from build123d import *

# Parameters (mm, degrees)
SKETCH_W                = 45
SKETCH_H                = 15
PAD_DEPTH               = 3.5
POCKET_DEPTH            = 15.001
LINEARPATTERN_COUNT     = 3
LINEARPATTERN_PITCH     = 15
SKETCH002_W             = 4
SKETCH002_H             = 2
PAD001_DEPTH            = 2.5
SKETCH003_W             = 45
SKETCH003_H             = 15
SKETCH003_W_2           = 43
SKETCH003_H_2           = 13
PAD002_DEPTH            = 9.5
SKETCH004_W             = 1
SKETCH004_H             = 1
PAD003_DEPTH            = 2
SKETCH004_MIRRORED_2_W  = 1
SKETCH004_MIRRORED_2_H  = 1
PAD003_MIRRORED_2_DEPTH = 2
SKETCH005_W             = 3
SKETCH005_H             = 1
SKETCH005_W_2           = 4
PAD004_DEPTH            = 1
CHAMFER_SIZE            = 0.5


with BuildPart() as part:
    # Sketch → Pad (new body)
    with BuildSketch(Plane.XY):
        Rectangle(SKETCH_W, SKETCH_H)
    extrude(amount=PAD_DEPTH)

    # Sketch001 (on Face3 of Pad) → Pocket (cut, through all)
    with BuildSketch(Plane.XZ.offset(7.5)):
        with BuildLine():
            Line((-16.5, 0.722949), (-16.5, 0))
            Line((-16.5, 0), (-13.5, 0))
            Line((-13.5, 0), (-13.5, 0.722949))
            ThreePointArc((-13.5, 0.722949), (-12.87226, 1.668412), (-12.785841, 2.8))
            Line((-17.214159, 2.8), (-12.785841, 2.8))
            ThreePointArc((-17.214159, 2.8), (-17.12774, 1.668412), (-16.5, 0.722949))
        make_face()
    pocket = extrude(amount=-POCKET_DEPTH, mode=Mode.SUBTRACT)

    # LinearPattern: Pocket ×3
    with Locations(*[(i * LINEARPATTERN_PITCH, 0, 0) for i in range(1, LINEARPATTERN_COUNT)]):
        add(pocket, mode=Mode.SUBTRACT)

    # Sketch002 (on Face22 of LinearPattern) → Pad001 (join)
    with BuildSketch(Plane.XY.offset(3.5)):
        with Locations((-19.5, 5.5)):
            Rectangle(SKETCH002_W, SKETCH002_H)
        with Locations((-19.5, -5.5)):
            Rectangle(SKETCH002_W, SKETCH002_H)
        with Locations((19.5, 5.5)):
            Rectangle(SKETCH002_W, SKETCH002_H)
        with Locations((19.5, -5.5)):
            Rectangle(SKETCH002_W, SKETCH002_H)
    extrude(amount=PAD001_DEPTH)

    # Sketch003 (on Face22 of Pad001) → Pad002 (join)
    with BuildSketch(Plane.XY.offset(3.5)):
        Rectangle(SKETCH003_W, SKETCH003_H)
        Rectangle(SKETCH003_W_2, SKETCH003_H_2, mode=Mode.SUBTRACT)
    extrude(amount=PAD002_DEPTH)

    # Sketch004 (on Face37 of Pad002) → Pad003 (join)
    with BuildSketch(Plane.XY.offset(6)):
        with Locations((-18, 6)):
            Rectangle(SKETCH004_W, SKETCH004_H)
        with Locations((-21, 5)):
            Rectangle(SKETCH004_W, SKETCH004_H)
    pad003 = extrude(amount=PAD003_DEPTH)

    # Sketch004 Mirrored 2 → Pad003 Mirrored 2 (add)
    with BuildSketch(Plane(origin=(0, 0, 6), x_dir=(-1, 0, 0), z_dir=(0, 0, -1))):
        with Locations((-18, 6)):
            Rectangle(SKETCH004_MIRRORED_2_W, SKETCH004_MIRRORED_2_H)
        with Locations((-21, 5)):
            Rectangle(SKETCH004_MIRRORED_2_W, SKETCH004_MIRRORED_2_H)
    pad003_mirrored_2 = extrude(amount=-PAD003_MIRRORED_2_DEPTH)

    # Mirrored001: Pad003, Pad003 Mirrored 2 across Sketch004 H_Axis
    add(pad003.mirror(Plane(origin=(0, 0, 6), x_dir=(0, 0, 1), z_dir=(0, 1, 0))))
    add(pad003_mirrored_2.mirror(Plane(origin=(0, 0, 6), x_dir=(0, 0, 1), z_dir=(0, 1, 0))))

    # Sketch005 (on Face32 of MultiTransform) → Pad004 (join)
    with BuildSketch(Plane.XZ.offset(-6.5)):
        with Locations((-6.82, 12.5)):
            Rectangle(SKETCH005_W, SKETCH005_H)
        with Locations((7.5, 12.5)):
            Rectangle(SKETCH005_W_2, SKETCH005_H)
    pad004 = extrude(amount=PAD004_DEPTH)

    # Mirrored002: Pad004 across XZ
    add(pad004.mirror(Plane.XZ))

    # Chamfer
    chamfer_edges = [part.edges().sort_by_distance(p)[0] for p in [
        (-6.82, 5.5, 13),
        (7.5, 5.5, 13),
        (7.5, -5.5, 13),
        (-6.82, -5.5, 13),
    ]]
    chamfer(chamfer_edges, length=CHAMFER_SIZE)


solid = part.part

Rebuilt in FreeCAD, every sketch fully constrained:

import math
import FreeCAD as App
import Part
import Sketcher

V = App.Vector
Q = App.Units.Quantity


def edges_at(feature, points):
    """Names of the edges that pass closest to the given points."""
    edges = feature.Shape.Edges
    near = lambda p: min(range(len(edges)), key=lambda i: edges[i].distToShape(Part.Vertex(*p))[0])
    return sorted({f"Edge{near(p) + 1}" for p in points})

doc = App.newDocument("Part")
params = doc.addObject("Spreadsheet::Sheet", "Params")
for row, (alias, value) in enumerate([
    ("sketch1_width", "45 mm"),
    ("sketch1_height", "15 mm"),
    ("pad1_length", "3.5 mm"),
    ("sketch2_width", "3 mm"),
    ("linearpattern_pitch", "15 mm"),
    ("sketch3_width", "4 mm"),
    ("sketch3_height", "2 mm"),
    ("pad2_length", "2.5 mm"),
    ("sketch4_width", "45 mm"),
    ("sketch4_width2", "43 mm"),
    ("sketch4_height", "15 mm"),
    ("sketch4_height2", "13 mm"),
    ("pad3_length", "9.5 mm"),
    ("sketch5_width", "1 mm"),
    ("pad4_length", "2 mm"),
    ("sketch6_width", "1 mm"),
    ("pad5_length", "2 mm"),
    ("sketch7_width", "3 mm"),
    ("sketch7_width2", "4 mm"),
    ("sketch7_height", "1 mm"),
    ("pad6_length", "1 mm"),
    ("chamfer_size", "0.5 mm"),
], start=1):
    params.set(f"A{row}", alias)
    params.set(f"B{row}", "=" + value)
    params.setAlias(f"B{row}", alias)

body = doc.addObject("PartDesign::Body", "Body")

sketch1 = doc.addObject("Sketcher::SketchObject", "Sketch")
body.addObject(sketch1)
sketch1.AttachmentSupport = (doc.XY_Plane, [""])
sketch1.MapMode = "FlatFace"
sketch1.addGeometry(Part.LineSegment(V(-22, 8, 0), V(-22, -8, 0)), False)
sketch1.addGeometry(Part.LineSegment(V(-22, -8, 0), V(22, -8, 0)), False)
sketch1.addGeometry(Part.LineSegment(V(22, -8, 0), V(22, 8, 0)), False)
sketch1.addGeometry(Part.LineSegment(V(22, 8, 0), V(-22, 8, 0)), False)
sketch1.addConstraint(Sketcher.Constraint("Coincident", 0, 2, 1, 1))
sketch1.addConstraint(Sketcher.Constraint("Coincident", 1, 2, 2, 1))
sketch1.addConstraint(Sketcher.Constraint("Coincident", 2, 2, 3, 1))
sketch1.addConstraint(Sketcher.Constraint("Coincident", 3, 2, 0, 1))
sketch1.addConstraint(Sketcher.Constraint("Vertical", 0))
sketch1.addConstraint(Sketcher.Constraint("Horizontal", 1))
sketch1.addConstraint(Sketcher.Constraint("Vertical", 2))
sketch1.addConstraint(Sketcher.Constraint("Horizontal", 3))
sketch1.addConstraint(Sketcher.Constraint("Symmetric", 0, 2, 2, 2, -1, 1))
sketch1.addConstraint(Sketcher.Constraint("DistanceX", 1, 1, 1, 2, Q("45 mm")))
sketch1.addConstraint(Sketcher.Constraint("DistanceY", 0, 2, 0, 1, Q("15 mm")))
sketch1.setExpression("Constraints[9]", "Params.sketch1_width")
sketch1.setExpression("Constraints[10]", "Params.sketch1_height")
pad1 = doc.addObject("PartDesign::Pad", "Pad")
body.addObject(pad1)
pad1.Profile = sketch1
pad1.setExpression("Length", "Params.pad1_length")

sketch2 = doc.addObject("Sketcher::SketchObject", "Sketch001")
body.addObject(sketch2)
sketch2.AttachmentSupport = (doc.XZ_Plane, [""])
sketch2.MapMode = "FlatFace"
sketch2.AttachmentOffset = App.Placement(V(0, 0, 7.5), App.Rotation())
sketch2.addGeometry(Part.LineSegment(V(-16.5, 0.7, 0), V(-16.5, 0, 0)), False)
sketch2.addGeometry(Part.LineSegment(V(-16.5, 0, 0), V(-13.5, 0, 0)), False)
sketch2.addGeometry(Part.LineSegment(V(-13.5, 0, 0), V(-13.5, 0.7, 0)), False)
sketch2.addGeometry(Part.ArcOfCircle(Part.Circle(V(-15, 2.4, 0), V(0, 0, 1), 2.3), math.radians(-48), math.radians(10)), False)
sketch2.addGeometry(Part.LineSegment(V(-12.8, 2.8, 0), V(-17.2, 2.8, 0)), False)
sketch2.addGeometry(Part.ArcOfCircle(Part.Circle(V(-15, 2.4, 0), V(0, 0, 1), 2.3), math.radians(170), math.radians(228)), False)
sketch2.addConstraint(Sketcher.Constraint("Coincident", 0, 2, 1, 1))
sketch2.addConstraint(Sketcher.Constraint("Coincident", 1, 2, 2, 1))
sketch2.addConstraint(Sketcher.Constraint("Coincident", 2, 2, 3, 1))
sketch2.addConstraint(Sketcher.Constraint("Coincident", 3, 2, 4, 1))
sketch2.addConstraint(Sketcher.Constraint("Coincident", 4, 2, 5, 1))
sketch2.addConstraint(Sketcher.Constraint("Coincident", 5, 2, 0, 1))
sketch2.addConstraint(Sketcher.Constraint("Vertical", 0))
sketch2.addConstraint(Sketcher.Constraint("Horizontal", 1))
sketch2.addConstraint(Sketcher.Constraint("Vertical", 2))
sketch2.addConstraint(Sketcher.Constraint("Horizontal", 4))
sketch2.addConstraint(Sketcher.Constraint("Coincident", 5, 3, 3, 3))
sketch2.addConstraint(Sketcher.Constraint("Equal", 3, 5))
sketch2.addConstraint(Sketcher.Constraint("PointOnObject", 0, 2, -1))
sketch2.addConstraint(Sketcher.Constraint("Horizontal", 2, 2, 5, 2))
sketch2.addConstraint(Sketcher.Constraint("DistanceX", 1, 1, 1, 2, Q("3 mm")))
sketch2.addConstraint(Sketcher.Constraint("DistanceY", -1, 1, 3, 3, Q("2.400001 mm")))
sketch2.addConstraint(Sketcher.Constraint("DistanceX", 0, 2, -1, 1, Q("16.5 mm")))
sketch2.addConstraint(Sketcher.Constraint("DistanceY", -1, 1, 3, 2, Q("2.8 mm")))
sketch2.addConstraint(Sketcher.Constraint("Radius", 3, Q("2.250002 mm")))
sketch2.setExpression("Constraints[14]", "Params.sketch2_width")
pocket1 = doc.addObject("PartDesign::Pocket", "Pocket")
body.addObject(pocket1)
pocket1.Profile = sketch2
pocket1.Type = "ThroughAll"
doc.recompute()

linearpattern = doc.addObject("PartDesign::LinearPattern", "LinearPattern")
body.addObject(linearpattern)
linearpattern.Originals = [pocket1]
linearpattern.Direction = (doc.X_Axis, [""])
linearpattern.Mode = "offset"
linearpattern.setExpression("Offset", "Params.linearpattern_pitch")
linearpattern.Occurrences = 3
body.Tip = linearpattern

sketch3 = doc.addObject("Sketcher::SketchObject", "Sketch002")
body.addObject(sketch3)
sketch3.AttachmentSupport = (doc.XY_Plane, [""])
sketch3.MapMode = "FlatFace"
sketch3.AttachmentOffset = App.Placement(V(0, 0, 3.5), App.Rotation())
sketch3.addGeometry(Part.LineSegment(V(-21.5, 6.5, 0), V(-21.5, 4.5, 0)), False)
sketch3.addGeometry(Part.LineSegment(V(-21.5, 4.5, 0), V(-17.5, 4.5, 0)), False)
sketch3.addGeometry(Part.LineSegment(V(-17.5, 4.5, 0), V(-17.5, 6.5, 0)), False)
sketch3.addGeometry(Part.LineSegment(V(-17.5, 6.5, 0), V(-21.5, 6.5, 0)), False)
sketch3.addGeometry(Part.LineSegment(V(-21.5, -4.5, 0), V(-21.5, -6.5, 0)), False)
sketch3.addGeometry(Part.LineSegment(V(-21.5, -6.5, 0), V(-17.5, -6.5, 0)), False)
sketch3.addGeometry(Part.LineSegment(V(-17.5, -6.5, 0), V(-17.5, -4.5, 0)), False)
sketch3.addGeometry(Part.LineSegment(V(-17.5, -4.5, 0), V(-21.5, -4.5, 0)), False)
sketch3.addGeometry(Part.LineSegment(V(17.5, 6.5, 0), V(17.5, 4.5, 0)), False)
sketch3.addGeometry(Part.LineSegment(V(17.5, 4.5, 0), V(21.5, 4.5, 0)), False)
sketch3.addGeometry(Part.LineSegment(V(21.5, 4.5, 0), V(21.5, 6.5, 0)), False)
sketch3.addGeometry(Part.LineSegment(V(21.5, 6.5, 0), V(17.5, 6.5, 0)), False)
sketch3.addGeometry(Part.LineSegment(V(17.5, -4.5, 0), V(17.5, -6.5, 0)), False)
sketch3.addGeometry(Part.LineSegment(V(17.5, -6.5, 0), V(21.5, -6.5, 0)), False)
sketch3.addGeometry(Part.LineSegment(V(21.5, -6.5, 0), V(21.5, -4.5, 0)), False)
sketch3.addGeometry(Part.LineSegment(V(21.5, -4.5, 0), V(17.5, -4.5, 0)), False)
sketch3.addConstraint(Sketcher.Constraint("Coincident", 0, 2, 1, 1))
sketch3.addConstraint(Sketcher.Constraint("Coincident", 1, 2, 2, 1))
sketch3.addConstraint(Sketcher.Constraint("Coincident", 2, 2, 3, 1))
sketch3.addConstraint(Sketcher.Constraint("Coincident", 3, 2, 0, 1))
sketch3.addConstraint(Sketcher.Constraint("Coincident", 4, 2, 5, 1))
sketch3.addConstraint(Sketcher.Constraint("Coincident", 5, 2, 6, 1))
sketch3.addConstraint(Sketcher.Constraint("Coincident", 6, 2, 7, 1))
sketch3.addConstraint(Sketcher.Constraint("Coincident", 7, 2, 4, 1))
sketch3.addConstraint(Sketcher.Constraint("Coincident", 8, 2, 9, 1))
sketch3.addConstraint(Sketcher.Constraint("Coincident", 9, 2, 10, 1))
sketch3.addConstraint(Sketcher.Constraint("Coincident", 10, 2, 11, 1))
sketch3.addConstraint(Sketcher.Constraint("Coincident", 11, 2, 8, 1))
sketch3.addConstraint(Sketcher.Constraint("Coincident", 12, 2, 13, 1))
sketch3.addConstraint(Sketcher.Constraint("Coincident", 13, 2, 14, 1))
sketch3.addConstraint(Sketcher.Constraint("Coincident", 14, 2, 15, 1))
sketch3.addConstraint(Sketcher.Constraint("Coincident", 15, 2, 12, 1))
sketch3.addConstraint(Sketcher.Constraint("Vertical", 0))
sketch3.addConstraint(Sketcher.Constraint("Horizontal", 1))
sketch3.addConstraint(Sketcher.Constraint("Vertical", 2))
sketch3.addConstraint(Sketcher.Constraint("Horizontal", 3))
sketch3.addConstraint(Sketcher.Constraint("Vertical", 4))
sketch3.addConstraint(Sketcher.Constraint("Horizontal", 5))
sketch3.addConstraint(Sketcher.Constraint("Vertical", 6))
sketch3.addConstraint(Sketcher.Constraint("Horizontal", 7))
sketch3.addConstraint(Sketcher.Constraint("Vertical", 8))
sketch3.addConstraint(Sketcher.Constraint("Horizontal", 9))
sketch3.addConstraint(Sketcher.Constraint("Vertical", 10))
sketch3.addConstraint(Sketcher.Constraint("Horizontal", 11))
sketch3.addConstraint(Sketcher.Constraint("Vertical", 12))
sketch3.addConstraint(Sketcher.Constraint("Horizontal", 13))
sketch3.addConstraint(Sketcher.Constraint("Vertical", 14))
sketch3.addConstraint(Sketcher.Constraint("Horizontal", 15))
sketch3.addConstraint(Sketcher.Constraint("Symmetric", 6, 2, 8, 2, -1, 1))
sketch3.addConstraint(Sketcher.Constraint("Symmetric", 4, 2, 10, 2, -1, 1))
sketch3.addConstraint(Sketcher.Constraint("Symmetric", 2, 2, 12, 2, -1, 1))
sketch3.addConstraint(Sketcher.Constraint("Symmetric", 0, 2, 14, 2, -1, 1))
sketch3.addConstraint(Sketcher.Constraint("Symmetric", 1, 2, 8, 2, -2))
sketch3.addConstraint(Sketcher.Constraint("Symmetric", 3, 2, 10, 2, -2))
sketch3.addConstraint(Sketcher.Constraint("DistanceX", 1, 1, 1, 2, Q("4 mm")))
sketch3.addConstraint(Sketcher.Constraint("DistanceY", 0, 2, 0, 1, Q("2 mm")))
sketch3.addConstraint(Sketcher.Constraint("DistanceY", 4, 2, 0, 2, Q("11 mm")))
sketch3.addConstraint(Sketcher.Constraint("DistanceX", 1, 2, 8, 2, Q("35 mm")))
sketch3.setExpression("Constraints[38]", "Params.sketch3_width")
sketch3.setExpression("Constraints[39]", "Params.sketch3_height")
pad2 = doc.addObject("PartDesign::Pad", "Pad001")
body.addObject(pad2)
pad2.Profile = sketch3
pad2.setExpression("Length", "Params.pad2_length")

sketch4 = doc.addObject("Sketcher::SketchObject", "Sketch003")
body.addObject(sketch4)
sketch4.AttachmentSupport = (doc.XY_Plane, [""])
sketch4.MapMode = "FlatFace"
sketch4.AttachmentOffset = App.Placement(V(0, 0, 3.5), App.Rotation())
sketch4.addGeometry(Part.LineSegment(V(-22, 8, 0), V(-22, -8, 0)), False)
sketch4.addGeometry(Part.LineSegment(V(-22, -8, 0), V(22, -8, 0)), False)
sketch4.addGeometry(Part.LineSegment(V(22, -8, 0), V(22, 8, 0)), False)
sketch4.addGeometry(Part.LineSegment(V(22, 8, 0), V(-22, 8, 0)), False)
sketch4.addGeometry(Part.LineSegment(V(22, -6, 0), V(-22, -6, 0)), False)
sketch4.addGeometry(Part.LineSegment(V(-22, -6, 0), V(-22, 6, 0)), False)
sketch4.addGeometry(Part.LineSegment(V(-22, 6, 0), V(22, 6, 0)), False)
sketch4.addGeometry(Part.LineSegment(V(22, 6, 0), V(22, -6, 0)), False)
sketch4.addConstraint(Sketcher.Constraint("Coincident", 0, 2, 1, 1))
sketch4.addConstraint(Sketcher.Constraint("Coincident", 1, 2, 2, 1))
sketch4.addConstraint(Sketcher.Constraint("Coincident", 2, 2, 3, 1))
sketch4.addConstraint(Sketcher.Constraint("Coincident", 3, 2, 0, 1))
sketch4.addConstraint(Sketcher.Constraint("Coincident", 4, 2, 5, 1))
sketch4.addConstraint(Sketcher.Constraint("Coincident", 5, 2, 6, 1))
sketch4.addConstraint(Sketcher.Constraint("Coincident", 6, 2, 7, 1))
sketch4.addConstraint(Sketcher.Constraint("Coincident", 7, 2, 4, 1))
sketch4.addConstraint(Sketcher.Constraint("Vertical", 0))
sketch4.addConstraint(Sketcher.Constraint("Horizontal", 1))
sketch4.addConstraint(Sketcher.Constraint("Vertical", 2))
sketch4.addConstraint(Sketcher.Constraint("Horizontal", 3))
sketch4.addConstraint(Sketcher.Constraint("Horizontal", 4))
sketch4.addConstraint(Sketcher.Constraint("Vertical", 5))
sketch4.addConstraint(Sketcher.Constraint("Horizontal", 6))
sketch4.addConstraint(Sketcher.Constraint("Vertical", 7))
sketch4.addConstraint(Sketcher.Constraint("Symmetric", 0, 2, 2, 2, -1, 1))
sketch4.addConstraint(Sketcher.Constraint("Symmetric", 4, 2, 6, 2, -1, 1))
sketch4.addConstraint(Sketcher.Constraint("DistanceX", 1, 1, 1, 2, Q("45 mm")))
sketch4.addConstraint(Sketcher.Constraint("DistanceX", 4, 2, 4, 1, Q("43 mm")))
sketch4.addConstraint(Sketcher.Constraint("DistanceY", 0, 2, 0, 1, Q("15 mm")))
sketch4.addConstraint(Sketcher.Constraint("DistanceY", 5, 1, 5, 2, Q("13 mm")))
sketch4.setExpression("Constraints[18]", "Params.sketch4_width")
sketch4.setExpression("Constraints[19]", "Params.sketch4_width2")
sketch4.setExpression("Constraints[20]", "Params.sketch4_height")
sketch4.setExpression("Constraints[21]", "Params.sketch4_height2")
pad3 = doc.addObject("PartDesign::Pad", "Pad002")
body.addObject(pad3)
pad3.Profile = sketch4
pad3.setExpression("Length", "Params.pad3_length")

sketch5 = doc.addObject("Sketcher::SketchObject", "Sketch004")
body.addObject(sketch5)
sketch5.AttachmentSupport = (doc.XY_Plane, [""])
sketch5.MapMode = "FlatFace"
sketch5.AttachmentOffset = App.Placement(V(0, 0, 6), App.Rotation())
sketch5.addGeometry(Part.LineSegment(V(-18.5, 6.5, 0), V(-18.5, 5.5, 0)), False)
sketch5.addGeometry(Part.LineSegment(V(-18.5, 5.5, 0), V(-17.5, 5.5, 0)), False)
sketch5.addGeometry(Part.LineSegment(V(-17.5, 5.5, 0), V(-17.5, 6.5, 0)), False)
sketch5.addGeometry(Part.LineSegment(V(-17.5, 6.5, 0), V(-18.5, 6.5, 0)), False)
sketch5.addGeometry(Part.LineSegment(V(-21.5, 5.5, 0), V(-21.5, 4.5, 0)), False)
sketch5.addGeometry(Part.LineSegment(V(-21.5, 4.5, 0), V(-20.5, 4.5, 0)), False)
sketch5.addGeometry(Part.LineSegment(V(-20.5, 4.5, 0), V(-20.5, 5.5, 0)), False)
sketch5.addGeometry(Part.LineSegment(V(-20.5, 5.5, 0), V(-21.5, 5.5, 0)), False)
sketch5.addConstraint(Sketcher.Constraint("Coincident", 0, 2, 1, 1))
sketch5.addConstraint(Sketcher.Constraint("Coincident", 1, 2, 2, 1))
sketch5.addConstraint(Sketcher.Constraint("Coincident", 2, 2, 3, 1))
sketch5.addConstraint(Sketcher.Constraint("Coincident", 3, 2, 0, 1))
sketch5.addConstraint(Sketcher.Constraint("Coincident", 4, 2, 5, 1))
sketch5.addConstraint(Sketcher.Constraint("Coincident", 5, 2, 6, 1))
sketch5.addConstraint(Sketcher.Constraint("Coincident", 6, 2, 7, 1))
sketch5.addConstraint(Sketcher.Constraint("Coincident", 7, 2, 4, 1))
sketch5.addConstraint(Sketcher.Constraint("Vertical", 0))
sketch5.addConstraint(Sketcher.Constraint("Horizontal", 1))
sketch5.addConstraint(Sketcher.Constraint("Vertical", 2))
sketch5.addConstraint(Sketcher.Constraint("Horizontal", 3))
sketch5.addConstraint(Sketcher.Constraint("Vertical", 4))
sketch5.addConstraint(Sketcher.Constraint("Horizontal", 5))
sketch5.addConstraint(Sketcher.Constraint("Vertical", 6))
sketch5.addConstraint(Sketcher.Constraint("Horizontal", 7))
sketch5.addConstraint(Sketcher.Constraint("Horizontal", 1, 2, 6, 2))
sketch5.addConstraint(Sketcher.Constraint("Equal", 3, 5))
sketch5.addConstraint(Sketcher.Constraint("Equal", 7, 0))
sketch5.addConstraint(Sketcher.Constraint("Equal", 2, 4))
sketch5.addConstraint(Sketcher.Constraint("DistanceX", 1, 1, 1, 2, Q("1 mm")))
sketch5.addConstraint(Sketcher.Constraint("DistanceX", 4, 2, 0, 2, Q("3 mm")))
sketch5.addConstraint(Sketcher.Constraint("DistanceX", 0, 2, -1, 1, Q("18.5 mm")))
sketch5.addConstraint(Sketcher.Constraint("DistanceY", -1, 1, 0, 2, Q("5.5 mm")))
sketch5.setExpression("Constraints[20]", "Params.sketch5_width")
pad4 = doc.addObject("PartDesign::Pad", "Pad003")
body.addObject(pad4)
pad4.Profile = sketch5
pad4.setExpression("Length", "Params.pad4_length")

sketch6 = doc.addObject("Sketcher::SketchObject", "Sketch005")
body.addObject(sketch6)
sketch6.AttachmentSupport = (doc.XY_Plane, [""])
sketch6.MapMode = "FlatFace"
sketch6.AttachmentOffset = App.Placement(V(0, 0, 6), App.Rotation())
sketch6.addGeometry(Part.LineSegment(V(18.5, 6.5, 0), V(18.5, 5.5, 0)), False)
sketch6.addGeometry(Part.LineSegment(V(18.5, 5.5, 0), V(17.5, 5.5, 0)), False)
sketch6.addGeometry(Part.LineSegment(V(17.5, 5.5, 0), V(17.5, 6.5, 0)), False)
sketch6.addGeometry(Part.LineSegment(V(17.5, 6.5, 0), V(18.5, 6.5, 0)), False)
sketch6.addGeometry(Part.LineSegment(V(21.5, 5.5, 0), V(21.5, 4.5, 0)), False)
sketch6.addGeometry(Part.LineSegment(V(21.5, 4.5, 0), V(20.5, 4.5, 0)), False)
sketch6.addGeometry(Part.LineSegment(V(20.5, 4.5, 0), V(20.5, 5.5, 0)), False)
sketch6.addGeometry(Part.LineSegment(V(20.5, 5.5, 0), V(21.5, 5.5, 0)), False)
sketch6.addConstraint(Sketcher.Constraint("Coincident", 0, 2, 1, 1))
sketch6.addConstraint(Sketcher.Constraint("Coincident", 1, 2, 2, 1))
sketch6.addConstraint(Sketcher.Constraint("Coincident", 2, 2, 3, 1))
sketch6.addConstraint(Sketcher.Constraint("Coincident", 3, 2, 0, 1))
sketch6.addConstraint(Sketcher.Constraint("Coincident", 4, 2, 5, 1))
sketch6.addConstraint(Sketcher.Constraint("Coincident", 5, 2, 6, 1))
sketch6.addConstraint(Sketcher.Constraint("Coincident", 6, 2, 7, 1))
sketch6.addConstraint(Sketcher.Constraint("Coincident", 7, 2, 4, 1))
sketch6.addConstraint(Sketcher.Constraint("Vertical", 0))
sketch6.addConstraint(Sketcher.Constraint("Horizontal", 1))
sketch6.addConstraint(Sketcher.Constraint("Vertical", 2))
sketch6.addConstraint(Sketcher.Constraint("Horizontal", 3))
sketch6.addConstraint(Sketcher.Constraint("Vertical", 4))
sketch6.addConstraint(Sketcher.Constraint("Horizontal", 5))
sketch6.addConstraint(Sketcher.Constraint("Vertical", 6))
sketch6.addConstraint(Sketcher.Constraint("Horizontal", 7))
sketch6.addConstraint(Sketcher.Constraint("Horizontal", 1, 2, 6, 2))
sketch6.addConstraint(Sketcher.Constraint("Equal", 3, 5))
sketch6.addConstraint(Sketcher.Constraint("Equal", 7, 0))
sketch6.addConstraint(Sketcher.Constraint("Equal", 2, 4))
sketch6.addConstraint(Sketcher.Constraint("DistanceX", 1, 2, 1, 1, Q("1 mm")))
sketch6.addConstraint(Sketcher.Constraint("DistanceX", 0, 2, 4, 2, Q("3 mm")))
sketch6.addConstraint(Sketcher.Constraint("DistanceX", -1, 1, 0, 2, Q("18.5 mm")))
sketch6.addConstraint(Sketcher.Constraint("DistanceY", -1, 1, 0, 2, Q("5.5 mm")))
sketch6.setExpression("Constraints[20]", "Params.sketch6_width")
pad5 = doc.addObject("PartDesign::Pad", "Pad004")
body.addObject(pad5)
pad5.Profile = sketch6
pad5.setExpression("Length", "Params.pad5_length")
doc.recompute()

mirrored = doc.addObject("PartDesign::Mirrored", "Mirrored")
body.addObject(mirrored)
mirrored.Originals = [pad4, pad5]
mirrored.MirrorPlane = (doc.XZ_Plane, [""])
body.Tip = mirrored

sketch7 = doc.addObject("Sketcher::SketchObject", "Sketch006")
body.addObject(sketch7)
sketch7.AttachmentSupport = (doc.XZ_Plane, [""])
sketch7.MapMode = "FlatFace"
sketch7.AttachmentOffset = App.Placement(V(0, 0, -6.5), App.Rotation())
sketch7.addGeometry(Part.LineSegment(V(-8.3, 13, 0), V(-8.3, 12, 0)), False)
sketch7.addGeometry(Part.LineSegment(V(-8.3, 12, 0), V(-5.3, 12, 0)), False)
sketch7.addGeometry(Part.LineSegment(V(-5.3, 12, 0), V(-5.3, 13, 0)), False)
sketch7.addGeometry(Part.LineSegment(V(-5.3, 13, 0), V(-8.3, 13, 0)), False)
sketch7.addGeometry(Part.LineSegment(V(5.5, 13, 0), V(5.5, 12, 0)), False)
sketch7.addGeometry(Part.LineSegment(V(5.5, 12, 0), V(9.5, 12, 0)), False)
sketch7.addGeometry(Part.LineSegment(V(9.5, 12, 0), V(9.5, 13, 0)), False)
sketch7.addGeometry(Part.LineSegment(V(9.5, 13, 0), V(5.5, 13, 0)), False)
sketch7.addConstraint(Sketcher.Constraint("Coincident", 0, 2, 1, 1))
sketch7.addConstraint(Sketcher.Constraint("Coincident", 1, 2, 2, 1))
sketch7.addConstraint(Sketcher.Constraint("Coincident", 2, 2, 3, 1))
sketch7.addConstraint(Sketcher.Constraint("Coincident", 3, 2, 0, 1))
sketch7.addConstraint(Sketcher.Constraint("Coincident", 4, 2, 5, 1))
sketch7.addConstraint(Sketcher.Constraint("Coincident", 5, 2, 6, 1))
sketch7.addConstraint(Sketcher.Constraint("Coincident", 6, 2, 7, 1))
sketch7.addConstraint(Sketcher.Constraint("Coincident", 7, 2, 4, 1))
sketch7.addConstraint(Sketcher.Constraint("Vertical", 0))
sketch7.addConstraint(Sketcher.Constraint("Horizontal", 1))
sketch7.addConstraint(Sketcher.Constraint("Vertical", 2))
sketch7.addConstraint(Sketcher.Constraint("Horizontal", 3))
sketch7.addConstraint(Sketcher.Constraint("Vertical", 4))
sketch7.addConstraint(Sketcher.Constraint("Horizontal", 5))
sketch7.addConstraint(Sketcher.Constraint("Vertical", 6))
sketch7.addConstraint(Sketcher.Constraint("Horizontal", 7))
sketch7.addConstraint(Sketcher.Constraint("Horizontal", 1, 2, 4, 2))
sketch7.addConstraint(Sketcher.Constraint("Horizontal", 3, 2, 6, 2))
sketch7.addConstraint(Sketcher.Constraint("DistanceX", 1, 1, 1, 2, Q("3 mm")))
sketch7.addConstraint(Sketcher.Constraint("DistanceX", 5, 1, 5, 2, Q("4 mm")))
sketch7.addConstraint(Sketcher.Constraint("DistanceY", 0, 2, 0, 1, Q("1 mm")))
sketch7.addConstraint(Sketcher.Constraint("DistanceY", -1, 1, 0, 2, Q("12 mm")))
sketch7.addConstraint(Sketcher.Constraint("DistanceX", -1, 1, 4, 2, Q("5.5 mm")))
sketch7.addConstraint(Sketcher.Constraint("DistanceX", 0, 2, -1, 1, Q("8.32 mm")))
sketch7.setExpression("Constraints[18]", "Params.sketch7_width")
sketch7.setExpression("Constraints[19]", "Params.sketch7_width2")
sketch7.setExpression("Constraints[20]", "Params.sketch7_height")
pad6 = doc.addObject("PartDesign::Pad", "Pad005")
body.addObject(pad6)
pad6.Profile = sketch7
pad6.setExpression("Length", "Params.pad6_length")
doc.recompute()

mirrored2 = doc.addObject("PartDesign::Mirrored", "Mirrored001")
body.addObject(mirrored2)
mirrored2.Originals = [pad6]
mirrored2.MirrorPlane = (doc.XZ_Plane, [""])
body.Tip = mirrored2
doc.recompute()

chamfer = doc.addObject("PartDesign::Chamfer", "Chamfer")
body.addObject(chamfer)
chamfer.Base = (mirrored2, edges_at(mirrored2, [
    (-6.82, 5.5, 13),
    (7.5, 5.5, 13),
    (7.5, -5.5, 13),
    (-6.82, -5.5, 13),
]))
chamfer.setExpression("Size", "Params.chamfer_size")

doc.recompute()
